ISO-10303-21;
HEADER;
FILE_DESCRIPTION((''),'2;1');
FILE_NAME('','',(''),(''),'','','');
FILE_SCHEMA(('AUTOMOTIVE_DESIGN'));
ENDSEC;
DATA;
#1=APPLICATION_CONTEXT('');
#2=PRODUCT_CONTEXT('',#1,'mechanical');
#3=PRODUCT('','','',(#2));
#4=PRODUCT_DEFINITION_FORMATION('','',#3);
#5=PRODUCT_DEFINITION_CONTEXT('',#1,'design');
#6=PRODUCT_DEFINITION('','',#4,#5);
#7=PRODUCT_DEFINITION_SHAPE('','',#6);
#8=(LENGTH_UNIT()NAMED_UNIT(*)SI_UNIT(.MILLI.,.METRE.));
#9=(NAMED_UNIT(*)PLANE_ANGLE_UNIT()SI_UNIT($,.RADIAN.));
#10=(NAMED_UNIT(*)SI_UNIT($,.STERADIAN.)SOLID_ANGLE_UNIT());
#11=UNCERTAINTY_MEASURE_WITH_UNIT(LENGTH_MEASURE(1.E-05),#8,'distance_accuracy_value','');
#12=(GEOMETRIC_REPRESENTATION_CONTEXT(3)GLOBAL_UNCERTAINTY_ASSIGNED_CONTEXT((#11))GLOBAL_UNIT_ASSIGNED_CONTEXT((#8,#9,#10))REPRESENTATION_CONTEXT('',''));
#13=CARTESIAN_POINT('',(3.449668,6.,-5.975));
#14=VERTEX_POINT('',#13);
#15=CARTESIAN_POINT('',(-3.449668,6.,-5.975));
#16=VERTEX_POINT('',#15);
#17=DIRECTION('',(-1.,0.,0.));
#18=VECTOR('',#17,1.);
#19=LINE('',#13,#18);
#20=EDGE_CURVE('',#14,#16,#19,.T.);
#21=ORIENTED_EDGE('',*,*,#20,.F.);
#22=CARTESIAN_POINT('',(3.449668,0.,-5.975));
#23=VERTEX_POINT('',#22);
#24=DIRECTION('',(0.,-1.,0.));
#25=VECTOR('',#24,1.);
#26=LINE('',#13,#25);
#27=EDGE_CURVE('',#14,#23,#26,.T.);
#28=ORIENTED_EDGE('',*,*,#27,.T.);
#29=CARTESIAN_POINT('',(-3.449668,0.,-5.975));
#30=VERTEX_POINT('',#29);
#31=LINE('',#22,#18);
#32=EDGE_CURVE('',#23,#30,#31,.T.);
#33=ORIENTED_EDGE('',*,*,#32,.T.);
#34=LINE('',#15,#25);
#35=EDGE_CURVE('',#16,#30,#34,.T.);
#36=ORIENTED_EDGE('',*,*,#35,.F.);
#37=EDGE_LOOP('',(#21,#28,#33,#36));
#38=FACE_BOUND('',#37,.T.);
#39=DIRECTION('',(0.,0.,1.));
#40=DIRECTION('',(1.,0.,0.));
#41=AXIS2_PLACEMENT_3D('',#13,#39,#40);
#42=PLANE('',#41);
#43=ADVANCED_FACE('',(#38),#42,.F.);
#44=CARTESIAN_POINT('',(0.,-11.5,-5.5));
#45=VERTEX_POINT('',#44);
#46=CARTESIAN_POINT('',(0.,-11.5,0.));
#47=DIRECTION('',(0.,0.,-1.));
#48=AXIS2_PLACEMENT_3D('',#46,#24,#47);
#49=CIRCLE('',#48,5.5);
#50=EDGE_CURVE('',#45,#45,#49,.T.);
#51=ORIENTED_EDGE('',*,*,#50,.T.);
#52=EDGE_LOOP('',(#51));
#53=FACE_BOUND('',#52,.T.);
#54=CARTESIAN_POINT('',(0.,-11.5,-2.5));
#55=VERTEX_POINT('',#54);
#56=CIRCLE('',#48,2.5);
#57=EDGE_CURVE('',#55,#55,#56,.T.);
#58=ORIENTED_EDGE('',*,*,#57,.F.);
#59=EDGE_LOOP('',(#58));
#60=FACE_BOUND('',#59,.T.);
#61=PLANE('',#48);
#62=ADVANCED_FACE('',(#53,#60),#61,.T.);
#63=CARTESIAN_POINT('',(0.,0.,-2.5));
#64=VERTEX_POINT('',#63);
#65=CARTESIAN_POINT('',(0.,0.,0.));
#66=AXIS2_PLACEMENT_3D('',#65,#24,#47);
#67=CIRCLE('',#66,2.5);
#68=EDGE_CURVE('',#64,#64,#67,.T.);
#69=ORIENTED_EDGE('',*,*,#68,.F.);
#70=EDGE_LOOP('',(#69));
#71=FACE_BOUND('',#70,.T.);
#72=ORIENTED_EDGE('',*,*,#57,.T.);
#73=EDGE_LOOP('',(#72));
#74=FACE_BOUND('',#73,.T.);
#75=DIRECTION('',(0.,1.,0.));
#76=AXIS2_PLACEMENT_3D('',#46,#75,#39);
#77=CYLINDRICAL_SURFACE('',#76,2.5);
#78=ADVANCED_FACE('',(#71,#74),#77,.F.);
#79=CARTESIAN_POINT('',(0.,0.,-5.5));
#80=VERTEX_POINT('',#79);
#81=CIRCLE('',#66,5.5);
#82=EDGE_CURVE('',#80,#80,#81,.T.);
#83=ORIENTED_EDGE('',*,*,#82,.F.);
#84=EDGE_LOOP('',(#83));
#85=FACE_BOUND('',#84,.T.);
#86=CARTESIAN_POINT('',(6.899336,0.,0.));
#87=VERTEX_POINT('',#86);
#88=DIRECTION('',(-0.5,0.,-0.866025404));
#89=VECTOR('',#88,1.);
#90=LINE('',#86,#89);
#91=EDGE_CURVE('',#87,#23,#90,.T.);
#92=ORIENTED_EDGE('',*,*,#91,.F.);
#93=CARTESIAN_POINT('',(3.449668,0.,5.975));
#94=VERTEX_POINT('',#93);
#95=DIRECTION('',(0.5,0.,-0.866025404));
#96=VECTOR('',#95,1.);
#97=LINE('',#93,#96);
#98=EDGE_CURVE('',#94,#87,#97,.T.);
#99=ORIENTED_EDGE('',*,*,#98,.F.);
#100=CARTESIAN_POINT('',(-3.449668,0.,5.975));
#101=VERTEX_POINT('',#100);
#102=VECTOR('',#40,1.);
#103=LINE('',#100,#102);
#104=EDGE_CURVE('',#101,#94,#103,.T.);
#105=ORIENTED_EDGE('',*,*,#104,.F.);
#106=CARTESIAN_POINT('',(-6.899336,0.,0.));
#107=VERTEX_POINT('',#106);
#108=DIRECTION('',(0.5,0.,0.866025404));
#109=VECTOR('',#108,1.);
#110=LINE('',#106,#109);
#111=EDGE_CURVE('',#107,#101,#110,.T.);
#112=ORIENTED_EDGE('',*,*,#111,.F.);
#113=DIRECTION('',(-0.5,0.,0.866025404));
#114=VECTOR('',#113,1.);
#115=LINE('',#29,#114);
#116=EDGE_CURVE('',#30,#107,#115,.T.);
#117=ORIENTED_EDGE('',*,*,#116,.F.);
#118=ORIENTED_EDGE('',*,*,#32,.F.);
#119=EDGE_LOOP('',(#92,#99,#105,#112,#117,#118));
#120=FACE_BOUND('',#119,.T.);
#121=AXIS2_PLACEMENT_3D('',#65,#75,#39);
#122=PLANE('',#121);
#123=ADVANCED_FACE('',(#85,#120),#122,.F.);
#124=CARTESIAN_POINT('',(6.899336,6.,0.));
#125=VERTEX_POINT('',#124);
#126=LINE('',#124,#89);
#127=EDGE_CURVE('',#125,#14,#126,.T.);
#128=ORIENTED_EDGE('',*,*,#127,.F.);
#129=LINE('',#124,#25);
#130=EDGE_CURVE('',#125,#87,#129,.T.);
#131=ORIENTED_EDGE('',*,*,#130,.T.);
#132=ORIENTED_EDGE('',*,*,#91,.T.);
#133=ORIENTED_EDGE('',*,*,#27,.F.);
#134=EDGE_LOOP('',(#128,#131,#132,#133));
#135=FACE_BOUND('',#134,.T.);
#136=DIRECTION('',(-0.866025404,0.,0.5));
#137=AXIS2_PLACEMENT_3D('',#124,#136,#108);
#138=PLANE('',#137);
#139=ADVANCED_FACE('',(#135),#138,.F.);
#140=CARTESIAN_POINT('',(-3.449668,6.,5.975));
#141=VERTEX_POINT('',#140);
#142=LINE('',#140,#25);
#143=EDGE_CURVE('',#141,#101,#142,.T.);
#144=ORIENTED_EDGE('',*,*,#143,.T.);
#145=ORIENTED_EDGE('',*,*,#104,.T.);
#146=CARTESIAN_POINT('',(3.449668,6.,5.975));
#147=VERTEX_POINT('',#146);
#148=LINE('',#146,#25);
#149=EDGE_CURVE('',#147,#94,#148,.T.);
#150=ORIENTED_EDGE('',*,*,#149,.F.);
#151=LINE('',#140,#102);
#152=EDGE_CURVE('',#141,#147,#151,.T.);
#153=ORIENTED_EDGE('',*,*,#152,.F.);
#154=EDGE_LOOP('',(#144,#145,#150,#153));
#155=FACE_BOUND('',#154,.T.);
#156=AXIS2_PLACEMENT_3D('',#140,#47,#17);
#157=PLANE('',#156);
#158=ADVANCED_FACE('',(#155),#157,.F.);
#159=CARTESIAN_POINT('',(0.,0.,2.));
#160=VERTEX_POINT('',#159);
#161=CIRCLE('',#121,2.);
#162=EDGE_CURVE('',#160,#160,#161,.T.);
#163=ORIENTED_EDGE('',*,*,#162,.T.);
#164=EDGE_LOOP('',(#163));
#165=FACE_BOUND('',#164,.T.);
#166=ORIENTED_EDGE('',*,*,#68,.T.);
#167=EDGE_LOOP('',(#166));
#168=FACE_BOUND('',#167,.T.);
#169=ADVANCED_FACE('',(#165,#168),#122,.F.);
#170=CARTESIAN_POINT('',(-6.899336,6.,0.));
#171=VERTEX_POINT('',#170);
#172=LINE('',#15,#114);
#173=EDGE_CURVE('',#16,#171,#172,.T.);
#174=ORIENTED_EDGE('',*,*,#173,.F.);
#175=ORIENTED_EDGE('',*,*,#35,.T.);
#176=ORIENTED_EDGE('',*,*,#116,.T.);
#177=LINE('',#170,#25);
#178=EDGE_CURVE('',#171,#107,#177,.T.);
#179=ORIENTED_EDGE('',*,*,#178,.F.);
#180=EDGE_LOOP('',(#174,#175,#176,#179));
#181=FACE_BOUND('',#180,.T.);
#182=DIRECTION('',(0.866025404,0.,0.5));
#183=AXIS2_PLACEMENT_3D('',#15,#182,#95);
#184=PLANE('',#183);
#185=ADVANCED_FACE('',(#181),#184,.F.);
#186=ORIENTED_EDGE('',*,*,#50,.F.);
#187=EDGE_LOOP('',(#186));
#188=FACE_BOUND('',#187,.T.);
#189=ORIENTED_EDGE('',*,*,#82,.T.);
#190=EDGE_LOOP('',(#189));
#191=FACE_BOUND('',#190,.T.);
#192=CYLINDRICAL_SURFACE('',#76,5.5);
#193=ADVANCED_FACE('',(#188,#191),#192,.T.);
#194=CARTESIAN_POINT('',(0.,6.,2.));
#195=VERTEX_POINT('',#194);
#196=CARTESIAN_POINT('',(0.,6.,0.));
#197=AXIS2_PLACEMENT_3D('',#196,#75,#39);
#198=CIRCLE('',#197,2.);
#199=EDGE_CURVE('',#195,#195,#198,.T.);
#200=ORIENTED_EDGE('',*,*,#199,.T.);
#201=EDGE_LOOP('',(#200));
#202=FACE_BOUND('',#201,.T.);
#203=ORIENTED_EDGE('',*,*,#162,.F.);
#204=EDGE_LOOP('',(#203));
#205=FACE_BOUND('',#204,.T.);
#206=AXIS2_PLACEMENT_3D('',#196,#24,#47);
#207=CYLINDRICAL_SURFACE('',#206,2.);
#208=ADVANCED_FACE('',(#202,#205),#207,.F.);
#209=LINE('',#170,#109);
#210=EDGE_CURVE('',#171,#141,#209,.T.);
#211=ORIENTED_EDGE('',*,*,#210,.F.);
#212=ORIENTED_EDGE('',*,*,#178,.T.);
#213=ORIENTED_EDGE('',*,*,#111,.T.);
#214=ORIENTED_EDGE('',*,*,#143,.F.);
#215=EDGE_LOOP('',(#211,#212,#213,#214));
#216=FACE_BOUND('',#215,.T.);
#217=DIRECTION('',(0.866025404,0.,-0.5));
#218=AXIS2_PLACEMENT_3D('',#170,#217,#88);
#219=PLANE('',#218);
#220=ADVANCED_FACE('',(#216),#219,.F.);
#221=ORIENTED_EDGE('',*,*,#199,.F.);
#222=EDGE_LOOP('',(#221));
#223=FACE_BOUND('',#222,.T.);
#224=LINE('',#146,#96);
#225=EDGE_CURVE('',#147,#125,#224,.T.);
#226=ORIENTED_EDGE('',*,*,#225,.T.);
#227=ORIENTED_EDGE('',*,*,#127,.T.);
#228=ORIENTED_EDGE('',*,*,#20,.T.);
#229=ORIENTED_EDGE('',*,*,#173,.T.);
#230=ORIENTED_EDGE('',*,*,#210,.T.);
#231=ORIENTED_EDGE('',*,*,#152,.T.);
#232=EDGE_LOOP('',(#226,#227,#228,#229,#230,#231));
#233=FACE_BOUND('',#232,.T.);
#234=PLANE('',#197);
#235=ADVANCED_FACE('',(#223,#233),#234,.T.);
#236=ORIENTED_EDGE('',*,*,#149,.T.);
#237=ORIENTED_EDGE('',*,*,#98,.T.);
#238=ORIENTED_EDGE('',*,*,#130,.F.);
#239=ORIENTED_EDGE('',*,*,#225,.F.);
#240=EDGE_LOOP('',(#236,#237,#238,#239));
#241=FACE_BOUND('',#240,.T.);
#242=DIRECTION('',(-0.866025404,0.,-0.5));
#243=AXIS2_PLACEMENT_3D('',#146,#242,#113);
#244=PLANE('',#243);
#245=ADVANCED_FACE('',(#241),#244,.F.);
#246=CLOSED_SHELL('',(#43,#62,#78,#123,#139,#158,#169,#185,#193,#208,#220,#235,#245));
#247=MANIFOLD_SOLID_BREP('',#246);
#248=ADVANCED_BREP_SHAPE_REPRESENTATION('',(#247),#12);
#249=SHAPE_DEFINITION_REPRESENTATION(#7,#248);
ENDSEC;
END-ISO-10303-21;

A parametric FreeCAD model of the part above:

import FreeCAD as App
import Part
import Sketcher
from FreeCAD import Vector
Q = App.Units.Quantity

doc = App.newDocument("Part")
body = doc.addObject("PartDesign::Body", "Body")

# Sketch on XZ plane
sketch1 = body.newObject("Sketcher::SketchObject", "Sketch")
sketch1.AttachmentSupport = (doc.getObject("XZ_Plane"), [""])
sketch1.MapMode = "FlatFace"
sketch1.addGeometry(Part.LineSegment(Vector(6.9, 0, 0), Vector(3.4, -6, 0)), False)
sketch1.addGeometry(Part.LineSegment(Vector(3.4, -6, 0), Vector(-3.4, -6, 0)), False)
sketch1.addGeometry(Part.LineSegment(Vector(-3.4, -6, 0), Vector(-6.9, 0, 0)), False)
sketch1.addGeometry(Part.LineSegment(Vector(-6.9, 0, 0), Vector(-3.4, 6, 0)), False)
sketch1.addGeometry(Part.LineSegment(Vector(-3.4, 6, 0), Vector(3.4, 6, 0)), False)
sketch1.addGeometry(Part.LineSegment(Vector(3.4, 6, 0), Vector(6.9, 0, 0)), False)
sketch1.addGeometry(Part.Circle(Vector(0, 0, 0), Vector(0, 0, 1), 2), False)
sketch1.addConstraint(Sketcher.Constraint("Coincident", 0, 2, 1, 1))
sketch1.addConstraint(Sketcher.Constraint("Coincident", 1, 2, 2, 1))
sketch1.addConstraint(Sketcher.Constraint("Coincident", 2, 2, 3, 1))
sketch1.addConstraint(Sketcher.Constraint("Coincident", 3, 2, 4, 1))
sketch1.addConstraint(Sketcher.Constraint("Coincident", 4, 2, 5, 1))
sketch1.addConstraint(Sketcher.Constraint("Coincident", 5, 2, 0, 1))
sketch1.addConstraint(Sketcher.Constraint("Horizontal", 1))
sketch1.addConstraint(Sketcher.Constraint("Horizontal", 4))
sketch1.addConstraint(Sketcher.Constraint("Coincident", 6, 3, -1, 1))
sketch1.addConstraint(Sketcher.Constraint("Symmetric", 0, 2, 3, 2, -1, 1))
sketch1.addConstraint(Sketcher.Constraint("Symmetric", 2, 2, 5, 2, -1, 1))
sketch1.addConstraint(Sketcher.Constraint("PointOnObject", 2, 2, -1))
sketch1.addConstraint(Sketcher.Constraint("Parallel", 2, 5))
sketch1.addConstraint(Sketcher.Constraint("Vertical", 1, 2, 3, 2))
sketch1.addConstraint(Sketcher.Constraint("Diameter", 6, Q("4 mm")))
sketch1.addConstraint(Sketcher.Constraint("Angle", 0, Q("-120 deg")))
sketch1.addConstraint(Sketcher.Constraint("DistanceY", 1, 2, 3, 2, Q("11.95 mm")))
sketch1.addConstraint(Sketcher.Constraint("DistanceX", 1, 2, 1, 1, Q("6.899336 mm")))
pad1 = body.newObject("PartDesign::Pad", "Pad")
pad1.Profile = sketch1
pad1.Length = 6
pad1.Reversed = True

# Sketch on XZ plane
sketch2 = body.newObject("Sketcher::SketchObject", "Sketch001")
sketch2.AttachmentSupport = (doc.getObject("XZ_Plane"), [""])
sketch2.MapMode = "FlatFace"
sketch2.addGeometry(Part.Circle(Vector(0, 0, 0), Vector(0, 0, 1), 5.5), False)
sketch2.addGeometry(Part.Circle(Vector(0, 0, 0), Vector(0, 0, 1), 2.5), False)
sketch2.addConstraint(Sketcher.Constraint("Coincident", 0, 3, -1, 1))
sketch2.addConstraint(Sketcher.Constraint("Coincident", 1, 3, -1, 1))
sketch2.addConstraint(Sketcher.Constraint("Diameter", 0, Q("11 mm")))
sketch2.addConstraint(Sketcher.Constraint("Diameter", 1, Q("5 mm")))
pad2 = body.newObject("PartDesign::Pad", "Pad001")
pad2.Profile = sketch2
pad2.Length = 11.5

doc.recompute()
